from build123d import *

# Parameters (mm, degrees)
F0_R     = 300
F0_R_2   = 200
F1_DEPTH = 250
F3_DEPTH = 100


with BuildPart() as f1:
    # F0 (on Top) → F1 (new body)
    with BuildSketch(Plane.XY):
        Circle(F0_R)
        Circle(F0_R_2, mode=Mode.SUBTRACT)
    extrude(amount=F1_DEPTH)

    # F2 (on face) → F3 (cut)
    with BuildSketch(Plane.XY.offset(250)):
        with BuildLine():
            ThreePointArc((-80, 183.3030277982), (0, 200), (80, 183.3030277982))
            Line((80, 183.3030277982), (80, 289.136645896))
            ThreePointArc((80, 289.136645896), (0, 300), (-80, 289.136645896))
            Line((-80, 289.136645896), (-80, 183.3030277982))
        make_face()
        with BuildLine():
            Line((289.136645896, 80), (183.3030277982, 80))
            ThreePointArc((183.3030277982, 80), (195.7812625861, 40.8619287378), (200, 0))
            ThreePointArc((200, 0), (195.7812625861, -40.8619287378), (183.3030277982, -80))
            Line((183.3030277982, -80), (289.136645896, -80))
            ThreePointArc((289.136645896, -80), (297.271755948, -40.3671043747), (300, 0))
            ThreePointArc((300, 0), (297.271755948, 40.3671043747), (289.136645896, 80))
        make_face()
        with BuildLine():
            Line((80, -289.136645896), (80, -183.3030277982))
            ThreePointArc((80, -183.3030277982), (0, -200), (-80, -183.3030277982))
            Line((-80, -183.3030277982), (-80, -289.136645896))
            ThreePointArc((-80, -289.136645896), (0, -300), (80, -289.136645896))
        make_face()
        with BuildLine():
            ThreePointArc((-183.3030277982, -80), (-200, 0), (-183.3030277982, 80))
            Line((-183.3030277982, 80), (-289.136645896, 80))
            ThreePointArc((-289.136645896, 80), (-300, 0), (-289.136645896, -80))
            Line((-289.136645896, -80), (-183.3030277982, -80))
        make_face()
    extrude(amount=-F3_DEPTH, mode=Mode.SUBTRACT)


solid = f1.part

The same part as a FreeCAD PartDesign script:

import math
import FreeCAD as App
import Part
import Sketcher
Q = App.Units.Quantity

doc = App.newDocument("Part")
body = doc.addObject("PartDesign::Body", "Body")

sketch1 = body.newObject("Sketcher::SketchObject", "Sketch")
sketch1.AttachmentSupport = (doc.getObject("XY_Plane"), [""])
sketch1.MapMode = "FlatFace"
sketch1.addGeometry([
    Part.Circle(App.Vector(0, 0, 0), App.Vector(0, 0, 1), 300),
    Part.Circle(App.Vector(0, 0, 0), App.Vector(0, 0, 1), 200),
], False)
sketch1.addConstraint([
    Sketcher.Constraint("Coincident", 0, 3, -1, 1),
    Sketcher.Constraint("Coincident", 1, 3, -1, 1),
    Sketcher.Constraint("Diameter", 0, Q("600 mm")),
    Sketcher.Constraint("Diameter", 1, Q("400 mm")),
])
pad1 = body.newObject("PartDesign::Pad", "Pad")
pad1.Profile = sketch1
pad1.Length = 250

sketch2 = body.newObject("Sketcher::SketchObject", "Sketch001")
sketch2.AttachmentSupport = (doc.getObject("XY_Plane"), [""])
sketch2.MapMode = "FlatFace"
sketch2.AttachmentOffset = App.Placement(App.Vector(0, 0, 250), App.Rotation())
sketch2.addGeometry([
    Part.ArcOfCircle(Part.Circle(App.Vector(0, 0, 0), App.Vector(0, 0, 1), 200), math.radians(66), math.radians(114)),
    Part.LineSegment(App.Vector(80, 183, 0), App.Vector(80, 289, 0)),
    Part.ArcOfCircle(Part.Circle(App.Vector(0, 0, 0), App.Vector(0, 0, 1), 300), math.radians(75), math.radians(105)),
    Part.LineSegment(App.Vector(-80, 289, 0), App.Vector(-80, 183, 0)),
    Part.LineSegment(App.Vector(289, 80, 0), App.Vector(183, 80, 0)),
    Part.ArcOfCircle(Part.Circle(App.Vector(0, 0, 0), App.Vector(0, 0, 1), 200), math.radians(0), math.radians(24)),
    Part.ArcOfCircle(Part.Circle(App.Vector(0, 0, 0), App.Vector(0, 0, 1), 200), math.radians(-24), math.radians(0)),
    Part.LineSegment(App.Vector(183, -80, 0), App.Vector(289, -80, 0)),
    Part.ArcOfCircle(Part.Circle(App.Vector(0, 0, 0), App.Vector(0, 0, 1), 300), math.radians(-15.47), math.radians(0)),
    Part.ArcOfCircle(Part.Circle(App.Vector(0, 0, 0), App.Vector(0, 0, 1), 300), math.radians(0), math.radians(15.47)),
    Part.LineSegment(App.Vector(80, -289, 0), App.Vector(80, -183, 0)),
    Part.ArcOfCircle(Part.Circle(App.Vector(0, 0, 0), App.Vector(0, 0, 1), 200), math.radians(-114), math.radians(-66)),
    Part.LineSegment(App.Vector(-80, -183, 0), App.Vector(-80, -289, 0)),
    Part.ArcOfCircle(Part.Circle(App.Vector(0, 0, 0), App.Vector(0, 0, 1), 300), math.radians(-105), math.radians(-75)),
    Part.ArcOfCircle(Part.Circle(App.Vector(0, 0, 0), App.Vector(0, 0, 1), 200), math.radians(156), math.radians(204)),
    Part.LineSegment(App.Vector(-183, 80, 0), App.Vector(-289, 80, 0)),
    Part.ArcOfCircle(Part.Circle(App.Vector(0, 0, 0), App.Vector(0, 0, 1), 300), math.radians(165), math.radians(195)),
    Part.LineSegment(App.Vector(-289, -80, 0), App.Vector(-183, -80, 0)),
], False)
sketch2.addConstraint([
    Sketcher.Constraint("Coincident", 0, 1, 1, 1),
    Sketcher.Constraint("Coincident", 1, 2, 2, 1),
    Sketcher.Constraint("Coincident", 2, 2, 3, 1),
    Sketcher.Constraint("Coincident", 3, 2, 0, 2),
    Sketcher.Constraint("Coincident", 4, 2, 5, 2),
    Sketcher.Constraint("Tangent", 5, 1, 6, 2),
    Sketcher.Constraint("Coincident", 6, 1, 7, 1),
    Sketcher.Constraint("Coincident", 7, 2, 8, 1),
    Sketcher.Constraint("Tangent", 8, 2, 9, 1),
    Sketcher.Constraint("Coincident", 9, 2, 4, 1),
    Sketcher.Constraint("Coincident", 10, 2, 11, 2),
    Sketcher.Constraint("Coincident", 11, 1, 12, 1),
    Sketcher.Constraint("Coincident", 12, 2, 13, 1),
    Sketcher.Constraint("Coincident", 13, 2, 10, 1),
    Sketcher.Constraint("Coincident", 14, 1, 15, 1),
    Sketcher.Constraint("Coincident", 15, 2, 16, 1),
    Sketcher.Constraint("Coincident", 16, 2, 17, 1),
    Sketcher.Constraint("Coincident", 17, 2, 14, 2),
    Sketcher.Constraint("Vertical", 1),
    Sketcher.Constraint("Vertical", 3),
    Sketcher.Constraint("Horizontal", 4),
    Sketcher.Constraint("Horizontal", 7),
    Sketcher.Constraint("Vertical", 10),
    Sketcher.Constraint("Vertical", 12),
    Sketcher.Constraint("Horizontal", 15),
    Sketcher.Constraint("Horizontal", 17),
    Sketcher.Constraint("Coincident", 0, 3, -1, 1),
    Sketcher.Constraint("Coincident", 2, 3, -1, 1),
    Sketcher.Constraint("Coincident", 5, 3, -1, 1),
    Sketcher.Constraint("Coincident", 8, 3, -1, 1),
    Sketcher.Constraint("Coincident", 11, 3, -1, 1),
    Sketcher.Constraint("Coincident", 13, 3, -1, 1),
    Sketcher.Constraint("Coincident", 14, 3, -1, 1),
    Sketcher.Constraint("Coincident", 16, 3, -1, 1),
    Sketcher.Constraint("Equal", 0, 5),
    Sketcher.Constraint("Equal", 5, 6),
    Sketcher.Constraint("Equal", 2, 8),
    Sketcher.Constraint("Equal", 8, 9),
    Sketcher.Constraint("Equal", 6, 11),
    Sketcher.Constraint("Equal", 9, 13),
    Sketcher.Constraint("Equal", 11, 14),
    Sketcher.Constraint("Equal", 13, 16),
    Sketcher.Constraint("PointOnObject", 5, 1, -1),
    Sketcher.Constraint("PointOnObject", 8, 2, -1),
    Sketcher.Constraint("Horizontal", 1, 2, 2, 2),
    Sketcher.Constraint("Horizontal", 10, 2, 11, 1),
    Sketcher.Constraint("Horizontal", 9, 2, 14, 1),
    Sketcher.Constraint("Horizontal", 7, 2, 16, 2),
    Sketcher.Constraint("Vertical", 4, 2, 6, 1),
    Sketcher.Constraint("Vertical", 1, 2, 10, 2),
    Sketcher.Constraint("Equal", 17, 1),
    Sketcher.Constraint("Radius", 0, Q("200 mm")),
    Sketcher.Constraint("Radius", 2, Q("300 mm")),
    Sketcher.Constraint("DistanceX", -1, 1, 1, 2, Q("80 mm")),
])
pocket1 = body.newObject("PartDesign::Pocket", "Pocket")
pocket1.Profile = sketch2
pocket1.Length = 100

doc.recompute()
